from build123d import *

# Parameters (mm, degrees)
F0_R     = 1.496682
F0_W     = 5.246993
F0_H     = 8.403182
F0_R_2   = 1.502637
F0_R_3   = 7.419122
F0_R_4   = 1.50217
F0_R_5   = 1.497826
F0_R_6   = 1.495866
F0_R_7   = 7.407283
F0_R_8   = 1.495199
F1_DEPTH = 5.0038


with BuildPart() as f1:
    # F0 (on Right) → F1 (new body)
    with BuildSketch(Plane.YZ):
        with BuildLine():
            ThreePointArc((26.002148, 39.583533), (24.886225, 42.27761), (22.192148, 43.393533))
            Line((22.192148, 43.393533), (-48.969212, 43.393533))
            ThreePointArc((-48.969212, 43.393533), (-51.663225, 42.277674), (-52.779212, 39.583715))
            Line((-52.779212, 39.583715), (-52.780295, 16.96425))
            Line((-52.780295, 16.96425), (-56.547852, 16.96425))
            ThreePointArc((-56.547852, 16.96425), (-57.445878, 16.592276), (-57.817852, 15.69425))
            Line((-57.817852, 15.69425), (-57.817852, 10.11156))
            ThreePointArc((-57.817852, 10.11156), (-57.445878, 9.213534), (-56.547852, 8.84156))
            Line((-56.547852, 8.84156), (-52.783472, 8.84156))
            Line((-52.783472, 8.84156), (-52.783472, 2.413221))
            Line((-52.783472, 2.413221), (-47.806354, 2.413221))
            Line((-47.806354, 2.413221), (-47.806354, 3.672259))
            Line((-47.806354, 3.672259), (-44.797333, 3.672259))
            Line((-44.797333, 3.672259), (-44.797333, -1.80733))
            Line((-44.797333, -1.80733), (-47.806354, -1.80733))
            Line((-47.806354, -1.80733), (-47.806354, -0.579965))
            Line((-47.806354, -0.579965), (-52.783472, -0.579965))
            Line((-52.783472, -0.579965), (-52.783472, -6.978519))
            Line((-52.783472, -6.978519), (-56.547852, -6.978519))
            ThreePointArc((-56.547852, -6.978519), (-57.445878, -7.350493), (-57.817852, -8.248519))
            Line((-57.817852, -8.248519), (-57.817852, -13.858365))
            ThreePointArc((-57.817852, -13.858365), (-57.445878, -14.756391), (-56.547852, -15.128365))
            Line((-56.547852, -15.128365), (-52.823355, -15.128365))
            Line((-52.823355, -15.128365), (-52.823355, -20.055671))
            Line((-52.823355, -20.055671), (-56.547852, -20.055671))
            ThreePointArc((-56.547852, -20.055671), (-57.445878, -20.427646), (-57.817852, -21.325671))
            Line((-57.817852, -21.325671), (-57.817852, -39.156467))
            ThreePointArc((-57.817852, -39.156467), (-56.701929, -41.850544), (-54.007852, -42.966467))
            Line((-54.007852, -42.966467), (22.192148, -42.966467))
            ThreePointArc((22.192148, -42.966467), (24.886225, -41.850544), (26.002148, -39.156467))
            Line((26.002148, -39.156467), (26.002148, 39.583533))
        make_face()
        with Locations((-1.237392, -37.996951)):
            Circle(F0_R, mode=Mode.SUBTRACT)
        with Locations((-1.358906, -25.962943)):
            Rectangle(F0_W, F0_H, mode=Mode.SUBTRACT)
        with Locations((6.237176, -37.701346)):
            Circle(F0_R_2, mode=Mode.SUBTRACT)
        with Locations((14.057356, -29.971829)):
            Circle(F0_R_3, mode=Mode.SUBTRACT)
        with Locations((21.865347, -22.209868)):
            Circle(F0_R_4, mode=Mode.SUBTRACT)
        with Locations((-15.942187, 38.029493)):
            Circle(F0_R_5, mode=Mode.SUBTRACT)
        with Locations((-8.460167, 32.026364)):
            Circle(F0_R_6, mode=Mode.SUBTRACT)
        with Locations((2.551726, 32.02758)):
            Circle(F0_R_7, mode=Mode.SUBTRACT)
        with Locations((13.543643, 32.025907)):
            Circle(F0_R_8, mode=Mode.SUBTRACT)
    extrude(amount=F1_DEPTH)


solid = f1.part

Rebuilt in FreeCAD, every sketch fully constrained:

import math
import FreeCAD as App
import Part
import Sketcher
Q = App.Units.Quantity


def add_polygon(sketch, points):
    """Adds a closed chain of lines whose ends are joined by coincident constraints."""
    first, n = sketch.GeometryCount, len(points)
    for a, b in zip(points, points[1:] + points[:1]):
        sketch.addGeometry(Part.LineSegment(App.Vector(*a, 0), App.Vector(*b, 0)), False)
    for i in range(n):
        sketch.addConstraint(Sketcher.Constraint("Coincident", first + i, 2, first + (i + 1) % n, 1))

doc = App.newDocument("Part")
body = doc.addObject("PartDesign::Body", "Body")

# Sketch on YZ plane
sketch1 = body.newObject("Sketcher::SketchObject", "Sketch")
sketch1.AttachmentSupport = (doc.getObject("YZ_Plane"), [""])
sketch1.MapMode = "FlatFace"
sketch1.addGeometry(Part.ArcOfCircle(Part.Circle(App.Vector(22.2, 39.6, 0), App.Vector(0, 0, 1), 3.8), math.radians(0), math.radians(90)), False)  # 0
sketch1.addGeometry(Part.LineSegment(App.Vector(22.2, 43.4, 0), App.Vector(-49, 43.4, 0)), False)  # 1
sketch1.addGeometry(Part.ArcOfCircle(Part.Circle(App.Vector(-49, 39.6, 0), App.Vector(0, 0, 1), 3.8), math.radians(90), math.radians(180)), False)  # 2
sketch1.addGeometry(Part.LineSegment(App.Vector(-52.8, 39.6, 0), App.Vector(-52.8, 17, 0)), False)  # 3
sketch1.addGeometry(Part.LineSegment(App.Vector(-52.8, 17, 0), App.Vector(-56.5, 17, 0)), False)  # 4
sketch1.addGeometry(Part.ArcOfCircle(Part.Circle(App.Vector(-56.5, 15.7, 0), App.Vector(0, 0, 1), 1.3), math.radians(90), math.radians(180)), False)  # 5
sketch1.addGeometry(Part.LineSegment(App.Vector(-57.8, 15.7, 0), App.Vector(-57.8, 10.1, 0)), False)  # 6
sketch1.addGeometry(Part.ArcOfCircle(Part.Circle(App.Vector(-56.5, 10.1, 0), App.Vector(0, 0, 1), 1.3), math.radians(180), math.radians(270)), False)  # 7
sketch1.addGeometry(Part.LineSegment(App.Vector(-56.5, 8.8, 0), App.Vector(-52.8, 8.8, 0)), False)  # 8
sketch1.addGeometry(Part.LineSegment(App.Vector(-52.8, 8.8, 0), App.Vector(-52.8, 2.4, 0)), False)  # 9
sketch1.addGeometry(Part.LineSegment(App.Vector(-52.8, 2.4, 0), App.Vector(-47.8, 2.4, 0)), False)  # 10
sketch1.addGeometry(Part.LineSegment(App.Vector(-47.8, 2.4, 0), App.Vector(-47.8, 3.7, 0)), False)  # 11
sketch1.addGeometry(Part.LineSegment(App.Vector(-47.8, 3.7, 0), App.Vector(-44.8, 3.7, 0)), False)  # 12
sketch1.addGeometry(Part.LineSegment(App.Vector(-44.8, 3.7, 0), App.Vector(-44.8, -1.8, 0)), False)  # 13
sketch1.addGeometry(Part.LineSegment(App.Vector(-44.8, -1.8, 0), App.Vector(-47.8, -1.8, 0)), False)  # 14
sketch1.addGeometry(Part.LineSegment(App.Vector(-47.8, -1.8, 0), App.Vector(-47.8, -0.6, 0)), False)  # 15
sketch1.addGeometry(Part.LineSegment(App.Vector(-47.8, -0.6, 0), App.Vector(-52.8, -0.6, 0)), False)  # 16
sketch1.addGeometry(Part.LineSegment(App.Vector(-52.8, -0.6, 0), App.Vector(-52.8, -7, 0)), False)  # 17
sketch1.addGeometry(Part.LineSegment(App.Vector(-52.8, -7, 0), App.Vector(-56.5, -7, 0)), False)  # 18
sketch1.addGeometry(Part.ArcOfCircle(Part.Circle(App.Vector(-56.5, -8.2, 0), App.Vector(0, 0, 1), 1.3), math.radians(90), math.radians(180)), False)  # 19
sketch1.addGeometry(Part.LineSegment(App.Vector(-57.8, -8.2, 0), App.Vector(-57.8, -13.9, 0)), False)  # 20
sketch1.addGeometry(Part.ArcOfCircle(Part.Circle(App.Vector(-56.5, -13.9, 0), App.Vector(0, 0, 1), 1.3), math.radians(180), math.radians(270)), False)  # 21
sketch1.addGeometry(Part.LineSegment(App.Vector(-56.5, -15.1, 0), App.Vector(-52.8, -15.1, 0)), False)  # 22
sketch1.addGeometry(Part.LineSegment(App.Vector(-52.8, -15.1, 0), App.Vector(-52.8, -20.1, 0)), False)  # 23
sketch1.addGeometry(Part.LineSegment(App.Vector(-52.8, -20.1, 0), App.Vector(-56.5, -20.1, 0)), False)  # 24
sketch1.addGeometry(Part.ArcOfCircle(Part.Circle(App.Vector(-56.5, -21.3, 0), App.Vector(0, 0, 1), 1.3), math.radians(90), math.radians(180)), False)  # 25
sketch1.addGeometry(Part.LineSegment(App.Vector(-57.8, -21.3, 0), App.Vector(-57.8, -39.2, 0)), False)  # 26
sketch1.addGeometry(Part.ArcOfCircle(Part.Circle(App.Vector(-54, -39.2, 0), App.Vector(0, 0, 1), 3.8), math.radians(180), math.radians(270)), False)  # 27
sketch1.addGeometry(Part.LineSegment(App.Vector(-54, -43, 0), App.Vector(22.2, -43, 0)), False)  # 28
sketch1.addGeometry(Part.ArcOfCircle(Part.Circle(App.Vector(22.2, -39.2, 0), App.Vector(0, 0, 1), 3.8), math.radians(-90), math.radians(0)), False)  # 29
sketch1.addGeometry(Part.LineSegment(App.Vector(26, -39.2, 0), App.Vector(26, 39.6, 0)), False)  # 30
sketch1.addGeometry(Part.Circle(App.Vector(-1.2, -38, 0), App.Vector(0, 0, 1), 1.5), False)  # 31
add_polygon(sketch1, [(1.3, -30.2), (-4, -30.2), (-4, -21.8), (1.3, -21.8)])  # lines 32-35
sketch1.addGeometry(Part.Circle(App.Vector(6.2, -37.7, 0), App.Vector(0, 0, 1), 1.5), False)  # 36
sketch1.addGeometry(Part.Circle(App.Vector(14.1, -30, 0), App.Vector(0, 0, 1), 7.4), False)  # 37
sketch1.addGeometry(Part.Circle(App.Vector(21.9, -22.2, 0), App.Vector(0, 0, 1), 1.5), False)  # 38
sketch1.addGeometry(Part.Circle(App.Vector(-15.9, 38, 0), App.Vector(0, 0, 1), 1.5), False)  # 39
sketch1.addGeometry(Part.Circle(App.Vector(-8.5, 32, 0), App.Vector(0, 0, 1), 1.5), False)  # 40
sketch1.addGeometry(Part.Circle(App.Vector(2.6, 32, 0), App.Vector(0, 0, 1), 7.4), False)  # 41
sketch1.addGeometry(Part.Circle(App.Vector(13.5, 32, 0), App.Vector(0, 0, 1), 1.5), False)  # 42
sketch1.addConstraint(Sketcher.Constraint("Tangent", 0, 2, 1, 1))
sketch1.addConstraint(Sketcher.Constraint("Tangent", 1, 2, 2, 1))
sketch1.addConstraint(Sketcher.Constraint("Tangent", 2, 2, 3, 1))
sketch1.addConstraint(Sketcher.Constraint("Coincident", 3, 2, 4, 1))
sketch1.addConstraint(Sketcher.Constraint("Tangent", 4, 2, 5, 1))
sketch1.addConstraint(Sketcher.Constraint("Tangent", 5, 2, 6, 1))
sketch1.addConstraint(Sketcher.Constraint("Tangent", 6, 2, 7, 1))
sketch1.addConstraint(Sketcher.Constraint("Tangent", 7, 2, 8, 1))
sketch1.addConstraint(Sketcher.Constraint("Coincident", 8, 2, 9, 1))
sketch1.addConstraint(Sketcher.Constraint("Coincident", 9, 2, 10, 1))
sketch1.addConstraint(Sketcher.Constraint("Coincident", 10, 2, 11, 1))
sketch1.addConstraint(Sketcher.Constraint("Coincident", 11, 2, 12, 1))
sketch1.addConstraint(Sketcher.Constraint("Coincident", 12, 2, 13, 1))
sketch1.addConstraint(Sketcher.Constraint("Coincident", 13, 2, 14, 1))
sketch1.addConstraint(Sketcher.Constraint("Coincident", 14, 2, 15, 1))
sketch1.addConstraint(Sketcher.Constraint("Coincident", 15, 2, 16, 1))
sketch1.addConstraint(Sketcher.Constraint("Coincident", 16, 2, 17, 1))
sketch1.addConstraint(Sketcher.Constraint("Coincident", 17, 2, 18, 1))
sketch1.addConstraint(Sketcher.Constraint("Tangent", 18, 2, 19, 1))
sketch1.addConstraint(Sketcher.Constraint("Tangent", 19, 2, 20, 1))
sketch1.addConstraint(Sketcher.Constraint("Tangent", 20, 2, 21, 1))
sketch1.addConstraint(Sketcher.Constraint("Tangent", 21, 2, 22, 1))
sketch1.addConstraint(Sketcher.Constraint("Coincident", 22, 2, 23, 1))
sketch1.addConstraint(Sketcher.Constraint("Coincident", 23, 2, 24, 1))
sketch1.addConstraint(Sketcher.Constraint("Tangent", 24, 2, 25, 1))
sketch1.addConstraint(Sketcher.Constraint("Tangent", 25, 2, 26, 1))
sketch1.addConstraint(Sketcher.Constraint("Tangent", 26, 2, 27, 1))
sketch1.addConstraint(Sketcher.Constraint("Tangent", 27, 2, 28, 1))
sketch1.addConstraint(Sketcher.Constraint("Tangent", 28, 2, 29, 1))
sketch1.addConstraint(Sketcher.Constraint("Tangent", 29, 2, 30, 1))
sketch1.addConstraint(Sketcher.Constraint("Tangent", 30, 2, 0, 1))
sketch1.addConstraint(Sketcher.Constraint("Horizontal", 1))
sketch1.addConstraint(Sketcher.Constraint("Horizontal", 4))
sketch1.addConstraint(Sketcher.Constraint("Vertical", 6))
sketch1.addConstraint(Sketcher.Constraint("Horizontal", 8))
sketch1.addConstraint(Sketcher.Constraint("Vertical", 9))
sketch1.addConstraint(Sketcher.Constraint("Horizontal", 10))
sketch1.addConstraint(Sketcher.Constraint("Vertical", 11))
sketch1.addConstraint(Sketcher.Constraint("Horizontal", 12))
sketch1.addConstraint(Sketcher.Constraint("Vertical", 13))
sketch1.addConstraint(Sketcher.Constraint("Horizontal", 14))
sketch1.addConstraint(Sketcher.Constraint("Vertical", 15))
sketch1.addConstraint(Sketcher.Constraint("Horizontal", 16))
sketch1.addConstraint(Sketcher.Constraint("Vertical", 17))
sketch1.addConstraint(Sketcher.Constraint("Horizontal", 18))
sketch1.addConstraint(Sketcher.Constraint("Vertical", 20))
sketch1.addConstraint(Sketcher.Constraint("Horizontal", 22))
sketch1.addConstraint(Sketcher.Constraint("Vertical", 23))
sketch1.addConstraint(Sketcher.Constraint("Horizontal", 24))
sketch1.addConstraint(Sketcher.Constraint("Vertical", 26))
sketch1.addConstraint(Sketcher.Constraint("Horizontal", 28))
sketch1.addConstraint(Sketcher.Constraint("Vertical", 30))
sketch1.addConstraint(Sketcher.Constraint("Horizontal", 32))
sketch1.addConstraint(Sketcher.Constraint("Vertical", 33))
sketch1.addConstraint(Sketcher.Constraint("Horizontal", 34))
sketch1.addConstraint(Sketcher.Constraint("Vertical", 35))
sketch1.addConstraint(Sketcher.Constraint("Equal", 0, 2))
sketch1.addConstraint(Sketcher.Constraint("Equal", 5, 7))
sketch1.addConstraint(Sketcher.Constraint("Equal", 7, 19))
sketch1.addConstraint(Sketcher.Constraint("Equal", 19, 21))
sketch1.addConstraint(Sketcher.Constraint("Equal", 21, 25))
sketch1.addConstraint(Sketcher.Constraint("Equal", 2, 27))
sketch1.addConstraint(Sketcher.Constraint("Equal", 27, 29))
sketch1.addConstraint(Sketcher.Constraint("Vertical", 7, 3, 19, 3))
sketch1.addConstraint(Sketcher.Constraint("Vertical", 21, 3, 25, 3))
sketch1.addConstraint(Sketcher.Constraint("Vertical", 11, 2, 14, 2))
sketch1.addConstraint(Sketcher.Constraint("Vertical", 9, 2, 16, 2))
sketch1.addConstraint(Sketcher.Constraint("DistanceX", 28, 1, 28, 2, Q("3 in")))
sketch1.addConstraint(Sketcher.Constraint("Radius", 0, Q("0.15 in")))
sketch1.addConstraint(Sketcher.Constraint("Radius", 5, Q("0.0499999 in")))
sketch1.addConstraint(Sketcher.Constraint("DistanceY", 30, 1, 30, 2, Q("3.1 in")))
sketch1.addConstraint(Sketcher.Constraint("DistanceY", 26, 2, 26, 1, Q("0.7019998 in")))
sketch1.addConstraint(Sketcher.Constraint("Diameter", 38, Q("3.00434 mm")))
sketch1.addConstraint(Sketcher.Constraint("Diameter", 40, Q("2.991732 mm")))
sketch1.addConstraint(Sketcher.Constraint("Diameter", 31, Q("2.993364 mm")))
sketch1.addConstraint(Sketcher.Constraint("Diameter", 36, Q("3.005274 mm")))
sketch1.addConstraint(Sketcher.Constraint("Diameter", 37, Q("14.838244 mm")))
sketch1.addConstraint(Sketcher.Constraint("Diameter", 39, Q("2.995652 mm")))
sketch1.addConstraint(Sketcher.Constraint("Diameter", 41, Q("14.814566 mm")))
sketch1.addConstraint(Sketcher.Constraint("Diameter", 42, Q("2.990398 mm")))
sketch1.addConstraint(Sketcher.Constraint("DistanceY", 36, 3, 21, 3, Q("0.9387 in")))
sketch1.addConstraint(Sketcher.Constraint("DistanceY", 29, 3, 37, 3, Q("0.3615999 in")))
sketch1.addConstraint(Sketcher.Constraint("DistanceX", 1, 2, 1, 1, Q("71.16136 mm")))
sketch1.addConstraint(Sketcher.Constraint("DistanceX", 8, 1, 8, 2, Q("3.76438 mm")))
sketch1.addConstraint(Sketcher.Constraint("DistanceX", 10, 1, 10, 2, Q("4.977118 mm")))
sketch1.addConstraint(Sketcher.Constraint("DistanceX", 12, 1, 12, 2, Q("3.009021 mm")))
sketch1.addConstraint(Sketcher.Constraint("DistanceY", 6, 2, 6, 1, Q("5.58269 mm")))
sketch1.addConstraint(Sketcher.Constraint("DistanceY", 9, 2, 9, 1, Q("6.428339 mm")))
sketch1.addConstraint(Sketcher.Constraint("DistanceY", 13, 2, 13, 1, Q("5.479589 mm")))
sketch1.addConstraint(Sketcher.Constraint("DistanceY", 21, 3, 2, 3, Q("53.4419 mm")))
sketch1.addConstraint(Sketcher.Constraint("DistanceX", 38, 3, 29, 3, Q("0.326802 mm")))
sketch1.addConstraint(Sketcher.Constraint("DistanceY", 29, 3, 38, 3, Q("16.9466 mm")))
sketch1.addConstraint(Sketcher.Constraint("DistanceY", 11, 2, 8, 2, Q("5.169301 mm")))
sketch1.addConstraint(Sketcher.Constraint("DistanceX", 21, 3, 22, 2, Q("3.724498 mm")))
sketch1.addConstraint(Sketcher.Constraint("DistanceY", 31, 3, 33, 2, Q("16.235599 mm")))
sketch1.addConstraint(Sketcher.Constraint("DistanceX", 4, 2, 4, 1, Q("3.767557 mm")))
sketch1.addConstraint(Sketcher.Constraint("DistanceX", 32, 2, 32, 1, Q("5.246993 mm")))
sketch1.addConstraint(Sketcher.Constraint("DistanceY", 15, 1, 15, 2, Q("1.227365 mm")))
sketch1.addConstraint(Sketcher.Constraint("DistanceY", 17, 2, 17, 1, Q("6.398554 mm")))
sketch1.addConstraint(Sketcher.Constraint("DistanceY", 20, 2, 20, 1, Q("5.609846 mm")))
sketch1.addConstraint(Sketcher.Constraint("DistanceY", 33, 1, 33, 2, Q("8.403182 mm")))
sketch1.addConstraint(Sketcher.Constraint("DistanceX", -1, 1, 0, 3, Q("22.192149 mm")))
sketch1.addConstraint(Sketcher.Constraint("DistanceY", -1, 1, 5, 3, Q("15.694251 mm")))
sketch1.addConstraint(Sketcher.Constraint("DistanceY", 31, 3, -1, 1, Q("37.996951 mm")))
sketch1.addConstraint(Sketcher.Constraint("DistanceY", -1, 1, 41, 3, Q("32.02758 mm")))
sketch1.addConstraint(Sketcher.Constraint("DistanceX", -1, 1, 34, 2, Q("1.26459 mm")))
sketch1.addConstraint(Sketcher.Constraint("DistanceX", 31, 3, 29, 3, Q("23.429541 mm")))
sketch1.addConstraint(Sketcher.Constraint("DistanceX", 27, 3, 36, 3, Q("60.245029 mm")))
sketch1.addConstraint(Sketcher.Constraint("DistanceX", 36, 3, 37, 3, Q("7.82018 mm")))
sketch1.addConstraint(Sketcher.Constraint("DistanceY", 39, 3, 2, 3, Q("1.554041 mm")))
sketch1.addConstraint(Sketcher.Constraint("DistanceX", 39, 3, 40, 3, Q("7.48202 mm")))
sketch1.addConstraint(Sketcher.Constraint("DistanceY", 40, 3, 39, 3, Q("6.003129 mm")))
sketch1.addConstraint(Sketcher.Constraint("DistanceX", 2, 3, 41, 3, Q("51.520939 mm")))
sketch1.addConstraint(Sketcher.Constraint("DistanceX", 40, 3, 42, 3, Q("22.00381 mm")))
sketch1.addConstraint(Sketcher.Constraint("DistanceX", 39, 3, -1, 1, Q("15.942187 mm")))
sketch1.addConstraint(Sketcher.Constraint("DistanceY", -1, 1, 42, 3, Q("32.025907 mm")))
pad1 = body.newObject("PartDesign::Pad", "Pad")
pad1.Profile = sketch1
pad1.Length = Q("0.197 in")

doc.recompute()
